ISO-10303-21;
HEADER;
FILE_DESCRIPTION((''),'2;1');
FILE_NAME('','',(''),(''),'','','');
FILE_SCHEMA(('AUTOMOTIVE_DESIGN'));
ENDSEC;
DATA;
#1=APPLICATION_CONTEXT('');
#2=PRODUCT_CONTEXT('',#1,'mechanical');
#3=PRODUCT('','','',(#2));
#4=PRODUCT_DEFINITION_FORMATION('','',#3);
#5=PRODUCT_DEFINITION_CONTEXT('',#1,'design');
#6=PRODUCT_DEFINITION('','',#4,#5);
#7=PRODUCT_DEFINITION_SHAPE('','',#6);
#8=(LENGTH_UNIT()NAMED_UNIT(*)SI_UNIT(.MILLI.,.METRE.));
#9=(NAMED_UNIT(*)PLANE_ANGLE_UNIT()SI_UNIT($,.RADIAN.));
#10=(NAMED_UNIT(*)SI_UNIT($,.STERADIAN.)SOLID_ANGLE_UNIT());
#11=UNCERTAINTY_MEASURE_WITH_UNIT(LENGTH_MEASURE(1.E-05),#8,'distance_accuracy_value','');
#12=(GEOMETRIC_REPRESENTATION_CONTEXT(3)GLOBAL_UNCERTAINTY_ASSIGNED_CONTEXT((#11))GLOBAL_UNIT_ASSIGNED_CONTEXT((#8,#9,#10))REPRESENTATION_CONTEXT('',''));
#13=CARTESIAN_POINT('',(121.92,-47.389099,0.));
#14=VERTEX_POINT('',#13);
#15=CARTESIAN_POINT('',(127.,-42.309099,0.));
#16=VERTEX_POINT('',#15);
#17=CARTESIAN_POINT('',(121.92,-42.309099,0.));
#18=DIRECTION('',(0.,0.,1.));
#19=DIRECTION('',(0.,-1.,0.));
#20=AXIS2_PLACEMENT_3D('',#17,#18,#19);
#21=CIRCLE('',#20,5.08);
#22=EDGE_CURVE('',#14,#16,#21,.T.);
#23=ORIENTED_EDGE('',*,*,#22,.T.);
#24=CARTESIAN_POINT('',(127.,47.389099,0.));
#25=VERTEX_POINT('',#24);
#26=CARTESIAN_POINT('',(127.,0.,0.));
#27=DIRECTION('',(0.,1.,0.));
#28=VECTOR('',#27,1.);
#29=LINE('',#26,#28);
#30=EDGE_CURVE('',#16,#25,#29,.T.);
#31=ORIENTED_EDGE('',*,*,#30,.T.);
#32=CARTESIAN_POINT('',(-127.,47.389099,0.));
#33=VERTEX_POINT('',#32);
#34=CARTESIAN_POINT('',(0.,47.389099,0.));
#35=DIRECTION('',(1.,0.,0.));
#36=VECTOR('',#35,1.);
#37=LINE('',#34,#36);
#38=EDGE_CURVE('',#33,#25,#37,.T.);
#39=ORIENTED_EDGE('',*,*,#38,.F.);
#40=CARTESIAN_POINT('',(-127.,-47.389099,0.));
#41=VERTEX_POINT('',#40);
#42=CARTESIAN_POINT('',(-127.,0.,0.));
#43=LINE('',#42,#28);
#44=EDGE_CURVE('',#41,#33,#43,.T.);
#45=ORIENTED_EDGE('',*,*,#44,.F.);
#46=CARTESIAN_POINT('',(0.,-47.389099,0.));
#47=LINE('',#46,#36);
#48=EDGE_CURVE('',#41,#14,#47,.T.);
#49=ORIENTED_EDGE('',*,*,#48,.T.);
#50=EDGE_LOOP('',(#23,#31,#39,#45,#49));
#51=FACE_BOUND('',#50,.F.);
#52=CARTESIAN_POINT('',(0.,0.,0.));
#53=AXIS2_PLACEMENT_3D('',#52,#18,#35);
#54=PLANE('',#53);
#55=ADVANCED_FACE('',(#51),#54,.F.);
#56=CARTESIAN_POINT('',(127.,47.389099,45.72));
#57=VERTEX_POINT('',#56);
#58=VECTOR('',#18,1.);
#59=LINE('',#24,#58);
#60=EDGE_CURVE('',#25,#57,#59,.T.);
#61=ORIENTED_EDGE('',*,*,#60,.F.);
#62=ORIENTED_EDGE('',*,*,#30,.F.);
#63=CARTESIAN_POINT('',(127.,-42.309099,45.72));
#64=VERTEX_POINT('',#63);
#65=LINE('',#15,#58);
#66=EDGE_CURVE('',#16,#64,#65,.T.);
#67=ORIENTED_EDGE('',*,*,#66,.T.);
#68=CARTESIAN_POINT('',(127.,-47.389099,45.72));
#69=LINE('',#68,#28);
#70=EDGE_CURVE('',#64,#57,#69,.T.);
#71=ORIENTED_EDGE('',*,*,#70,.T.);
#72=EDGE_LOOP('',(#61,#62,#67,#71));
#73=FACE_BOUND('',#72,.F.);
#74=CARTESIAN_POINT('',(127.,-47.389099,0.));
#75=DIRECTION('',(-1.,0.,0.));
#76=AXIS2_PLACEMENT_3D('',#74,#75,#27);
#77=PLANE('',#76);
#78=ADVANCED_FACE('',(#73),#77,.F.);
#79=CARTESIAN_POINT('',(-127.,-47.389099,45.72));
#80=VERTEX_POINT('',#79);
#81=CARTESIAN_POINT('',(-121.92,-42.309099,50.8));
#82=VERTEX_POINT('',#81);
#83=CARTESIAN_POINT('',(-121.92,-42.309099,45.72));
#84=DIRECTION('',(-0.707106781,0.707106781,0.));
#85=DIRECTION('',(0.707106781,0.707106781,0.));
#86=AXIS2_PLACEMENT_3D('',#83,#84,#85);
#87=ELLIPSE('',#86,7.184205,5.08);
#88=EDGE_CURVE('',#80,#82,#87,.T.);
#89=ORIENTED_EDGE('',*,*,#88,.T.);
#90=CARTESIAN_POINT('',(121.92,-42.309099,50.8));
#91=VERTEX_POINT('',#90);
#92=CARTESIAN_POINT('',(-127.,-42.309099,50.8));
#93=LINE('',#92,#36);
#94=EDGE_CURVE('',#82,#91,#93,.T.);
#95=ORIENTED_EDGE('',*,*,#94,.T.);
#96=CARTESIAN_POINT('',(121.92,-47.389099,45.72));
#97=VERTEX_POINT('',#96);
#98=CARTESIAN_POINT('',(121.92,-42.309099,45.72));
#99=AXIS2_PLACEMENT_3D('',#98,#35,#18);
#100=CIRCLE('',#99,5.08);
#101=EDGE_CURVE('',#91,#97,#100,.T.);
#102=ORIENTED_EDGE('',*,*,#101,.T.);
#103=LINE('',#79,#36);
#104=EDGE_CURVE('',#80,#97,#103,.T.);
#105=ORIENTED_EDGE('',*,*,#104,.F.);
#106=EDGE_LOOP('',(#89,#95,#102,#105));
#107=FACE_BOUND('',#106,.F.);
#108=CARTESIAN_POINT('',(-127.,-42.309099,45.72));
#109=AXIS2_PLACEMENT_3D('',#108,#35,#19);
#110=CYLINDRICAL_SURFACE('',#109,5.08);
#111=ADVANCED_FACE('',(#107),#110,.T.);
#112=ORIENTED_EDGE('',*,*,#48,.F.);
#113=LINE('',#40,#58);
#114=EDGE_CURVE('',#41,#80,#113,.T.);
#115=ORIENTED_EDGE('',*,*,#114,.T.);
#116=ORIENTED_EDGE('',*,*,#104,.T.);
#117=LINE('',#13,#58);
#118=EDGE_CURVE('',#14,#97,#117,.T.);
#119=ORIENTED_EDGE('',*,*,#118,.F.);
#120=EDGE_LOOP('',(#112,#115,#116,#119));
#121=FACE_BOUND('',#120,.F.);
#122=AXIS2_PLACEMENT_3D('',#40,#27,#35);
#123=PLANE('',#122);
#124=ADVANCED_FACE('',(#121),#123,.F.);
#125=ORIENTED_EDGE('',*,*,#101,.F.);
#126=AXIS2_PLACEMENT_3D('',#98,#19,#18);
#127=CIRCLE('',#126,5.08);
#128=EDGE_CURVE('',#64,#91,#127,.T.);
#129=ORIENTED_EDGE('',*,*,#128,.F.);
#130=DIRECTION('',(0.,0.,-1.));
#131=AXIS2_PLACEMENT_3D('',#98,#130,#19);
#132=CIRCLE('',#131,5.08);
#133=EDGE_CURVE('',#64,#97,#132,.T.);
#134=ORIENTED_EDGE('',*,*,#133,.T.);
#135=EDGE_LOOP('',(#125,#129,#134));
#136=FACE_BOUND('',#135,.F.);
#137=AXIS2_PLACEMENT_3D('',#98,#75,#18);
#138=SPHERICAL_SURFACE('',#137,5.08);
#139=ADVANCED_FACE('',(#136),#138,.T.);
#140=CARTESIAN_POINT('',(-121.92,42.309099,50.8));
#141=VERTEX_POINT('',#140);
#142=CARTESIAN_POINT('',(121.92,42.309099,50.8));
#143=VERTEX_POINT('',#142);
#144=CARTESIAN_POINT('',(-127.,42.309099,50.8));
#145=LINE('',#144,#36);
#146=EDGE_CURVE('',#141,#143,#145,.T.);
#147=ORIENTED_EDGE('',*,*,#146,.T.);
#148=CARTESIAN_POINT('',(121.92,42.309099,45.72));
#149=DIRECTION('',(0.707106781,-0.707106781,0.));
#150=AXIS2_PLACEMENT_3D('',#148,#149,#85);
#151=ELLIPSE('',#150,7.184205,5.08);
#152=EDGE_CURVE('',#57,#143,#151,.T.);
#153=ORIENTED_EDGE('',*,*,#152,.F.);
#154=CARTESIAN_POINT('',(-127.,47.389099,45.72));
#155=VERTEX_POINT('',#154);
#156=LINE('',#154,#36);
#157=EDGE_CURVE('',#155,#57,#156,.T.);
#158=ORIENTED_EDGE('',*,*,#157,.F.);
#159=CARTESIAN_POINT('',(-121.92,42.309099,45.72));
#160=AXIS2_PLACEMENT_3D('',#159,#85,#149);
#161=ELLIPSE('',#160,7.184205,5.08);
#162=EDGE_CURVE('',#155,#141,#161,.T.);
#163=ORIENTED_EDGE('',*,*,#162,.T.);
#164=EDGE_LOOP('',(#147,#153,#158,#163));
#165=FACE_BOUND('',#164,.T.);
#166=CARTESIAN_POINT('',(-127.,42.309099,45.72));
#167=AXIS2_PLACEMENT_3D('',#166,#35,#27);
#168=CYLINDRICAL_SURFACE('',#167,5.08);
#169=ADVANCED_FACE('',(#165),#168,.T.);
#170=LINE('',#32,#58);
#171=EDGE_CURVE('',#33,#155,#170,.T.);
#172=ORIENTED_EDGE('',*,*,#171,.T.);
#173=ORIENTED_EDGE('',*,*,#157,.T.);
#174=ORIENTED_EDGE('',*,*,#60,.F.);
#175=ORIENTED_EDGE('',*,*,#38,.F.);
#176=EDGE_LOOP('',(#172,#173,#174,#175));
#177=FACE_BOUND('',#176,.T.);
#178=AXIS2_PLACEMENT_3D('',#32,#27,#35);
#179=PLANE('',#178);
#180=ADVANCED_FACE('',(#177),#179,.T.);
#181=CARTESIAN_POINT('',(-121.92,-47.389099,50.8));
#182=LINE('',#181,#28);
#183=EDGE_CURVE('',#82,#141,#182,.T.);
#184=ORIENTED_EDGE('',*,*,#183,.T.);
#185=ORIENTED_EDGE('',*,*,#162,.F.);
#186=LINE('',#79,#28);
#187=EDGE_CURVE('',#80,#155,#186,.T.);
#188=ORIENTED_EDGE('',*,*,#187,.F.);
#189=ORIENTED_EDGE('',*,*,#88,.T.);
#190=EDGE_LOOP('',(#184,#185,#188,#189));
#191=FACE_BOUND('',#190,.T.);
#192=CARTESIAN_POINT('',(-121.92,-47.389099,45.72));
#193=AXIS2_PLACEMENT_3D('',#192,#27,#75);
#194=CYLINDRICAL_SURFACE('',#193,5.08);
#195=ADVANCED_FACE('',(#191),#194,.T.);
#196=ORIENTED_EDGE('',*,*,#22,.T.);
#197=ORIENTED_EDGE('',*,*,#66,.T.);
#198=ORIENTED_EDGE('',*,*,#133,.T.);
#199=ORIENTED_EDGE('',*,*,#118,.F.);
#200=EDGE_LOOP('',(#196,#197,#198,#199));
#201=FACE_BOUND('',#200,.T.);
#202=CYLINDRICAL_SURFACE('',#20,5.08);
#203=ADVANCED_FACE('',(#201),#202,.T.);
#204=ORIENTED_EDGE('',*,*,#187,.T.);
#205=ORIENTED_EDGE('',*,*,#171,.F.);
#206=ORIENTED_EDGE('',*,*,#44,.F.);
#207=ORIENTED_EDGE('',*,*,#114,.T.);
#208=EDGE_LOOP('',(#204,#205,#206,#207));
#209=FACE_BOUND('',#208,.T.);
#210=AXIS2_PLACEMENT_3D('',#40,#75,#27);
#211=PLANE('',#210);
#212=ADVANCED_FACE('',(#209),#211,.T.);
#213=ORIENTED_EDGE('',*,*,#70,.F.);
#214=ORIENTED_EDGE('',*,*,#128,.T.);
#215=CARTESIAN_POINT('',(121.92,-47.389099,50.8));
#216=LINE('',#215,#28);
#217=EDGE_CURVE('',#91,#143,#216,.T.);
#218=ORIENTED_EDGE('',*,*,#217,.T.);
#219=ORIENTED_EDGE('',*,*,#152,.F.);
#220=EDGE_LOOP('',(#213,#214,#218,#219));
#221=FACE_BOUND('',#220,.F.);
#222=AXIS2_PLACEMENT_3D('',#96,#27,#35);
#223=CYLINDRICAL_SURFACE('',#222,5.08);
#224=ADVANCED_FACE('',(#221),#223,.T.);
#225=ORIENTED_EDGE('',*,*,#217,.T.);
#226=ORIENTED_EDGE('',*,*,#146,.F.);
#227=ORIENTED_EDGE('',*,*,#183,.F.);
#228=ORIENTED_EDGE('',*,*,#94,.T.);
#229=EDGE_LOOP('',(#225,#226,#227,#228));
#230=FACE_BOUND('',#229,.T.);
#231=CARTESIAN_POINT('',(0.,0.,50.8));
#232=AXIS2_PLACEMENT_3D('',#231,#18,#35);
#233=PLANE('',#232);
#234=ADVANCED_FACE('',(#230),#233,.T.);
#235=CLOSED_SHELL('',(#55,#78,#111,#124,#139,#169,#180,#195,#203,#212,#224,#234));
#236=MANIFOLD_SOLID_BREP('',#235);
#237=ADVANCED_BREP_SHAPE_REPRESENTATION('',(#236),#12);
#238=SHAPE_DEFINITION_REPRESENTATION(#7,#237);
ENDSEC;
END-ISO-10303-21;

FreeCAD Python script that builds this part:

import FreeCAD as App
import Part
import Sketcher
from FreeCAD import Vector
Q = App.Units.Quantity


def edges_at(feature, points):
    """Names of the edges that pass closest to the given points."""
    edges = feature.Shape.Edges
    near = lambda p: min(range(len(edges)), key=lambda i: edges[i].distToShape(Part.Vertex(*p))[0])
    return sorted({f"Edge{near(p) + 1}" for p in points})


def add_polygon(sketch, points):
    """Adds a closed chain of lines whose ends are joined by coincident constraints."""
    first, n = sketch.GeometryCount, len(points)
    for a, b in zip(points, points[1:] + points[:1]):
        sketch.addGeometry(Part.LineSegment(App.Vector(*a, 0), App.Vector(*b, 0)), False)
    for i in range(n):
        sketch.addConstraint(Sketcher.Constraint("Coincident", first + i, 2, first + (i + 1) % n, 1))

doc = App.newDocument("Part")
params = doc.addObject("Spreadsheet::Sheet", "Params")
for row, (alias, value) in enumerate([
    ("sketch1_width", "10 in"),
    ("pad1_length", "2 in"),
    ("fillet_radius", "0.2 in"),
], start=1):
    params.set(f"A{row}", alias)
    params.set(f"B{row}", "=" + value)
    params.setAlias(f"B{row}", alias)

body = doc.addObject("PartDesign::Body", "Body")

# Sketch on XY plane
sketch1 = body.newObject("Sketcher::SketchObject", "Sketch")
sketch1.AttachmentSupport = (doc.getObject("XY_Plane"), [""])
sketch1.MapMode = "FlatFace"
add_polygon(sketch1, [(-127, 47), (-127, -47), (127, -47), (127, 47)])  # lines 0-3
sketch1.addConstraint([
    Sketcher.Constraint("Vertical", 0),
    Sketcher.Constraint("Horizontal", 1),
    Sketcher.Constraint("Vertical", 2),
    Sketcher.Constraint("Horizontal", 3),
    Sketcher.Constraint("Symmetric", 0, 2, 2, 2, -1, 1),
    Sketcher.Constraint("DistanceX", 1, 1, 1, 2, Q("10 in")),
    Sketcher.Constraint("DistanceY", 0, 2, 0, 1, Q("94.778198 mm")),
])
sketch1.setExpression("Constraints[9]", "Params.sketch1_width")
pad1 = body.newObject("PartDesign::Pad", "Pad")
pad1.Profile = sketch1
pad1.setExpression("Length", "Params.pad1_length")
doc.recompute()

fillet = body.newObject("PartDesign::Fillet", "Fillet")
fillet.Base = (pad1, edges_at(pad1, [
    (0, -47.389, 50.8),
    (127, 0, 50.8),
    (0, 47.389, 50.8),
    (-127, 0, 50.8),
    (127, -47.389, 25.4),
]))
fillet.setExpression("Radius", "Params.fillet_radius")

doc.recompute()
